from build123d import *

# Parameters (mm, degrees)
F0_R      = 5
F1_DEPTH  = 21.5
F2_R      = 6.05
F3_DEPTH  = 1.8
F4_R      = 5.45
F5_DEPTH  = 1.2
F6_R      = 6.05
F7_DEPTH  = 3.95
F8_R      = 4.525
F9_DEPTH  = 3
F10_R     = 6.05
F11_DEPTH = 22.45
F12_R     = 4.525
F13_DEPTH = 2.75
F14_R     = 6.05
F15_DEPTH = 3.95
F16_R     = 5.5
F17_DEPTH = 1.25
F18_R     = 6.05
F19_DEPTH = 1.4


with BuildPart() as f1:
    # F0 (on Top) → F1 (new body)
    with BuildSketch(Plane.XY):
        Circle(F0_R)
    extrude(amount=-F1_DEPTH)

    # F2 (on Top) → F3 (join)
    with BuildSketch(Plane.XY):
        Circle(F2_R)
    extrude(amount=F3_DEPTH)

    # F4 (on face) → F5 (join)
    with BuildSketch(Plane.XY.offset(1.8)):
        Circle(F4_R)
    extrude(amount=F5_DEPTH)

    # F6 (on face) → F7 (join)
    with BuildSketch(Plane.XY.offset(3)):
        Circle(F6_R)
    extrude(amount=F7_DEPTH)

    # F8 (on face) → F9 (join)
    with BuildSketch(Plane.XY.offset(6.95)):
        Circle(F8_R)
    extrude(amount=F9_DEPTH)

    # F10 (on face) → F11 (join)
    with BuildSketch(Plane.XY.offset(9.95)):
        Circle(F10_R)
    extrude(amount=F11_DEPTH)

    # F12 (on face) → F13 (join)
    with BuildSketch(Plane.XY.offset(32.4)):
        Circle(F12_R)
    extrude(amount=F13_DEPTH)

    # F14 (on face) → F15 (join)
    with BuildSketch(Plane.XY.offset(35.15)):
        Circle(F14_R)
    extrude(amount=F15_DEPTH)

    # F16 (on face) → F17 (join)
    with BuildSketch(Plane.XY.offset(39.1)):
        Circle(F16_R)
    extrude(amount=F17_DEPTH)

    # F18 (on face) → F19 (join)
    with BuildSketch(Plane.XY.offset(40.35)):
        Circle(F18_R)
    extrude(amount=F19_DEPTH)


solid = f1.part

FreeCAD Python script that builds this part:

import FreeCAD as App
import Part
import Sketcher

V = App.Vector

doc = App.newDocument("Part")
params = doc.addObject("Spreadsheet::Sheet", "Params")
for row, (alias, value) in enumerate([
    ("sketch1_diameter", "10 mm"),
    ("pad1_length", "21.5 mm"),
    ("sketch2_diameter", "12.1 mm"),
    ("pad2_length", "1.8 mm"),
    ("sketch3_diameter", "10.9 mm"),
    ("pad3_length", "1.2 mm"),
    ("sketch4_diameter", "12.1 mm"),
    ("pad4_length", "3.95 mm"),
    ("sketch5_diameter", "9.05 mm"),
    ("pad5_length", "3 mm"),
    ("sketch6_diameter", "12.1 mm"),
    ("pad6_length", "22.45 mm"),
    ("sketch7_diameter", "9.05 mm"),
    ("pad7_length", "2.75 mm"),
    ("sketch8_diameter", "12.1 mm"),
    ("pad8_length", "3.95 mm"),
    ("sketch9_diameter", "11 mm"),
    ("pad9_length", "1.25 mm"),
    ("sketch10_diameter", "12.1 mm"),
    ("pad10_length", "1.4 mm"),
], start=1):
    params.set(f"A{row}", alias)
    params.set(f"B{row}", "=" + value)
    params.setAlias(f"B{row}", alias)

body = doc.addObject("PartDesign::Body", "Body")

sketch1 = body.newObject("Sketcher::SketchObject", "Sketch")
sketch1.AttachmentSupport = (doc.getObject("XY_Plane"), [""])
sketch1.MapMode = "FlatFace"
sketch1.addGeometry(Part.Circle(V(0, 0, 0), V(0, 0, 1), 5), False)
sketch1.addConstraint([
    Sketcher.Constraint("Coincident", 0, 3, -1, 1),
    Sketcher.Constraint("Diameter", 0, 10.0),
])
sketch1.setExpression("Constraints[1]", "Params.sketch1_diameter")
pad1 = body.newObject("PartDesign::Pad", "Pad")
pad1.Profile = sketch1
pad1.setExpression("Length", "Params.pad1_length")
pad1.Reversed = True

sketch2 = body.newObject("Sketcher::SketchObject", "Sketch001")
sketch2.AttachmentSupport = (doc.getObject("XY_Plane"), [""])
sketch2.MapMode = "FlatFace"
sketch2.addGeometry(Part.Circle(V(0, 0, 0), V(0, 0, 1), 6.05), False)
sketch2.addConstraint([
    Sketcher.Constraint("Coincident", 0, 3, -1, 1),
    Sketcher.Constraint("Diameter", 0, 12.1),
])
sketch2.setExpression("Constraints[1]", "Params.sketch2_diameter")
pad2 = body.newObject("PartDesign::Pad", "Pad001")
pad2.Profile = sketch2
pad2.setExpression("Length", "Params.pad2_length")

sketch3 = body.newObject("Sketcher::SketchObject", "Sketch002")
sketch3.AttachmentSupport = (doc.getObject("XY_Plane"), [""])
sketch3.MapMode = "FlatFace"
sketch3.AttachmentOffset = App.Placement(V(0, 0, 1.8), App.Rotation())
sketch3.addGeometry(Part.Circle(V(0, 0, 0), V(0, 0, 1), 5.45), False)
sketch3.addConstraint([
    Sketcher.Constraint("Coincident", 0, 3, -1, 1),
    Sketcher.Constraint("Diameter", 0, 10.9),
])
sketch3.setExpression("Constraints[1]", "Params.sketch3_diameter")
pad3 = body.newObject("PartDesign::Pad", "Pad002")
pad3.Profile = sketch3
pad3.setExpression("Length", "Params.pad3_length")

sketch4 = body.newObject("Sketcher::SketchObject", "Sketch003")
sketch4.AttachmentSupport = (doc.getObject("XY_Plane"), [""])
sketch4.MapMode = "FlatFace"
sketch4.AttachmentOffset = App.Placement(V(0, 0, 3), App.Rotation())
sketch4.addGeometry(Part.Circle(V(0, 0, 0), V(0, 0, 1), 6.05), False)
sketch4.addConstraint([
    Sketcher.Constraint("Coincident", 0, 3, -1, 1),
    Sketcher.Constraint("Diameter", 0, 12.1),
])
sketch4.setExpression("Constraints[1]", "Params.sketch4_diameter")
pad4 = body.newObject("PartDesign::Pad", "Pad003")
pad4.Profile = sketch4
pad4.setExpression("Length", "Params.pad4_length")

sketch5 = body.newObject("Sketcher::SketchObject", "Sketch004")
sketch5.AttachmentSupport = (doc.getObject("XY_Plane"), [""])
sketch5.MapMode = "FlatFace"
sketch5.AttachmentOffset = App.Placement(V(0, 0, 6.95), App.Rotation())
sketch5.addGeometry(Part.Circle(V(0, 0, 0), V(0, 0, 1), 4.525), False)
sketch5.addConstraint([
    Sketcher.Constraint("Coincident", 0, 3, -1, 1),
    Sketcher.Constraint("Diameter", 0, 9.05),
])
sketch5.setExpression("Constraints[1]", "Params.sketch5_diameter")
pad5 = body.newObject("PartDesign::Pad", "Pad004")
pad5.Profile = sketch5
pad5.setExpression("Length", "Params.pad5_length")

sketch6 = body.newObject("Sketcher::SketchObject", "Sketch005")
sketch6.AttachmentSupport = (doc.getObject("XY_Plane"), [""])
sketch6.MapMode = "FlatFace"
sketch6.AttachmentOffset = App.Placement(V(0, 0, 9.95), App.Rotation())
sketch6.addGeometry(Part.Circle(V(0, 0, 0), V(0, 0, 1), 6.05), False)
sketch6.addConstraint([
    Sketcher.Constraint("Coincident", 0, 3, -1, 1),
    Sketcher.Constraint("Diameter", 0, 12.1),
])
sketch6.setExpression("Constraints[1]", "Params.sketch6_diameter")
pad6 = body.newObject("PartDesign::Pad", "Pad005")
pad6.Profile = sketch6
pad6.setExpression("Length", "Params.pad6_length")

sketch7 = body.newObject("Sketcher::SketchObject", "Sketch006")
sketch7.AttachmentSupport = (doc.getObject("XY_Plane"), [""])
sketch7.MapMode = "FlatFace"
sketch7.AttachmentOffset = App.Placement(V(0, 0, 32.4), App.Rotation())
sketch7.addGeometry(Part.Circle(V(0, 0, 0), V(0, 0, 1), 4.525), False)
sketch7.addConstraint([
    Sketcher.Constraint("Coincident", 0, 3, -1, 1),
    Sketcher.Constraint("Diameter", 0, 9.05),
])
sketch7.setExpression("Constraints[1]", "Params.sketch7_diameter")
pad7 = body.newObject("PartDesign::Pad", "Pad006")
pad7.Profile = sketch7
pad7.setExpression("Length", "Params.pad7_length")

sketch8 = body.newObject("Sketcher::SketchObject", "Sketch007")
sketch8.AttachmentSupport = (doc.getObject("XY_Plane"), [""])
sketch8.MapMode = "FlatFace"
sketch8.AttachmentOffset = App.Placement(V(0, 0, 35.15), App.Rotation())
sketch8.addGeometry(Part.Circle(V(0, 0, 0), V(0, 0, 1), 6.05), False)
sketch8.addConstraint([
    Sketcher.Constraint("Coincident", 0, 3, -1, 1),
    Sketcher.Constraint("Diameter", 0, 12.1),
])
sketch8.setExpression("Constraints[1]", "Params.sketch8_diameter")
pad8 = body.newObject("PartDesign::Pad", "Pad007")
pad8.Profile = sketch8
pad8.setExpression("Length", "Params.pad8_length")

sketch9 = body.newObject("Sketcher::SketchObject", "Sketch008")
sketch9.AttachmentSupport = (doc.getObject("XY_Plane"), [""])
sketch9.MapMode = "FlatFace"
sketch9.AttachmentOffset = App.Placement(V(0, 0, 39.1), App.Rotation())
sketch9.addGeometry(Part.Circle(V(0, 0, 0), V(0, 0, 1), 5.5), False)
sketch9.addConstraint([
    Sketcher.Constraint("Coincident", 0, 3, -1, 1),
    Sketcher.Constraint("Diameter", 0, 11.0),
])
sketch9.setExpression("Constraints[1]", "Params.sketch9_diameter")
pad9 = body.newObject("PartDesign::Pad", "Pad008")
pad9.Profile = sketch9
pad9.setExpression("Length", "Params.pad9_length")

sketch10 = body.newObject("Sketcher::SketchObject", "Sketch009")
sketch10.AttachmentSupport = (doc.getObject("XY_Plane"), [""])
sketch10.MapMode = "FlatFace"
sketch10.AttachmentOffset = App.Placement(V(0, 0, 40.35), App.Rotation())
sketch10.addGeometry(Part.Circle(V(0, 0, 0), V(0, 0, 1), 6.05), False)
sketch10.addConstraint([
    Sketcher.Constraint("Coincident", 0, 3, -1, 1),
    Sketcher.Constraint("Diameter", 0, 12.1),
])
sketch10.setExpression("Constraints[1]", "Params.sketch10_diameter")
pad10 = body.newObject("PartDesign::Pad", "Pad009")
pad10.Profile = sketch10
pad10.setExpression("Length", "Params.pad10_length")

doc.recompute()
